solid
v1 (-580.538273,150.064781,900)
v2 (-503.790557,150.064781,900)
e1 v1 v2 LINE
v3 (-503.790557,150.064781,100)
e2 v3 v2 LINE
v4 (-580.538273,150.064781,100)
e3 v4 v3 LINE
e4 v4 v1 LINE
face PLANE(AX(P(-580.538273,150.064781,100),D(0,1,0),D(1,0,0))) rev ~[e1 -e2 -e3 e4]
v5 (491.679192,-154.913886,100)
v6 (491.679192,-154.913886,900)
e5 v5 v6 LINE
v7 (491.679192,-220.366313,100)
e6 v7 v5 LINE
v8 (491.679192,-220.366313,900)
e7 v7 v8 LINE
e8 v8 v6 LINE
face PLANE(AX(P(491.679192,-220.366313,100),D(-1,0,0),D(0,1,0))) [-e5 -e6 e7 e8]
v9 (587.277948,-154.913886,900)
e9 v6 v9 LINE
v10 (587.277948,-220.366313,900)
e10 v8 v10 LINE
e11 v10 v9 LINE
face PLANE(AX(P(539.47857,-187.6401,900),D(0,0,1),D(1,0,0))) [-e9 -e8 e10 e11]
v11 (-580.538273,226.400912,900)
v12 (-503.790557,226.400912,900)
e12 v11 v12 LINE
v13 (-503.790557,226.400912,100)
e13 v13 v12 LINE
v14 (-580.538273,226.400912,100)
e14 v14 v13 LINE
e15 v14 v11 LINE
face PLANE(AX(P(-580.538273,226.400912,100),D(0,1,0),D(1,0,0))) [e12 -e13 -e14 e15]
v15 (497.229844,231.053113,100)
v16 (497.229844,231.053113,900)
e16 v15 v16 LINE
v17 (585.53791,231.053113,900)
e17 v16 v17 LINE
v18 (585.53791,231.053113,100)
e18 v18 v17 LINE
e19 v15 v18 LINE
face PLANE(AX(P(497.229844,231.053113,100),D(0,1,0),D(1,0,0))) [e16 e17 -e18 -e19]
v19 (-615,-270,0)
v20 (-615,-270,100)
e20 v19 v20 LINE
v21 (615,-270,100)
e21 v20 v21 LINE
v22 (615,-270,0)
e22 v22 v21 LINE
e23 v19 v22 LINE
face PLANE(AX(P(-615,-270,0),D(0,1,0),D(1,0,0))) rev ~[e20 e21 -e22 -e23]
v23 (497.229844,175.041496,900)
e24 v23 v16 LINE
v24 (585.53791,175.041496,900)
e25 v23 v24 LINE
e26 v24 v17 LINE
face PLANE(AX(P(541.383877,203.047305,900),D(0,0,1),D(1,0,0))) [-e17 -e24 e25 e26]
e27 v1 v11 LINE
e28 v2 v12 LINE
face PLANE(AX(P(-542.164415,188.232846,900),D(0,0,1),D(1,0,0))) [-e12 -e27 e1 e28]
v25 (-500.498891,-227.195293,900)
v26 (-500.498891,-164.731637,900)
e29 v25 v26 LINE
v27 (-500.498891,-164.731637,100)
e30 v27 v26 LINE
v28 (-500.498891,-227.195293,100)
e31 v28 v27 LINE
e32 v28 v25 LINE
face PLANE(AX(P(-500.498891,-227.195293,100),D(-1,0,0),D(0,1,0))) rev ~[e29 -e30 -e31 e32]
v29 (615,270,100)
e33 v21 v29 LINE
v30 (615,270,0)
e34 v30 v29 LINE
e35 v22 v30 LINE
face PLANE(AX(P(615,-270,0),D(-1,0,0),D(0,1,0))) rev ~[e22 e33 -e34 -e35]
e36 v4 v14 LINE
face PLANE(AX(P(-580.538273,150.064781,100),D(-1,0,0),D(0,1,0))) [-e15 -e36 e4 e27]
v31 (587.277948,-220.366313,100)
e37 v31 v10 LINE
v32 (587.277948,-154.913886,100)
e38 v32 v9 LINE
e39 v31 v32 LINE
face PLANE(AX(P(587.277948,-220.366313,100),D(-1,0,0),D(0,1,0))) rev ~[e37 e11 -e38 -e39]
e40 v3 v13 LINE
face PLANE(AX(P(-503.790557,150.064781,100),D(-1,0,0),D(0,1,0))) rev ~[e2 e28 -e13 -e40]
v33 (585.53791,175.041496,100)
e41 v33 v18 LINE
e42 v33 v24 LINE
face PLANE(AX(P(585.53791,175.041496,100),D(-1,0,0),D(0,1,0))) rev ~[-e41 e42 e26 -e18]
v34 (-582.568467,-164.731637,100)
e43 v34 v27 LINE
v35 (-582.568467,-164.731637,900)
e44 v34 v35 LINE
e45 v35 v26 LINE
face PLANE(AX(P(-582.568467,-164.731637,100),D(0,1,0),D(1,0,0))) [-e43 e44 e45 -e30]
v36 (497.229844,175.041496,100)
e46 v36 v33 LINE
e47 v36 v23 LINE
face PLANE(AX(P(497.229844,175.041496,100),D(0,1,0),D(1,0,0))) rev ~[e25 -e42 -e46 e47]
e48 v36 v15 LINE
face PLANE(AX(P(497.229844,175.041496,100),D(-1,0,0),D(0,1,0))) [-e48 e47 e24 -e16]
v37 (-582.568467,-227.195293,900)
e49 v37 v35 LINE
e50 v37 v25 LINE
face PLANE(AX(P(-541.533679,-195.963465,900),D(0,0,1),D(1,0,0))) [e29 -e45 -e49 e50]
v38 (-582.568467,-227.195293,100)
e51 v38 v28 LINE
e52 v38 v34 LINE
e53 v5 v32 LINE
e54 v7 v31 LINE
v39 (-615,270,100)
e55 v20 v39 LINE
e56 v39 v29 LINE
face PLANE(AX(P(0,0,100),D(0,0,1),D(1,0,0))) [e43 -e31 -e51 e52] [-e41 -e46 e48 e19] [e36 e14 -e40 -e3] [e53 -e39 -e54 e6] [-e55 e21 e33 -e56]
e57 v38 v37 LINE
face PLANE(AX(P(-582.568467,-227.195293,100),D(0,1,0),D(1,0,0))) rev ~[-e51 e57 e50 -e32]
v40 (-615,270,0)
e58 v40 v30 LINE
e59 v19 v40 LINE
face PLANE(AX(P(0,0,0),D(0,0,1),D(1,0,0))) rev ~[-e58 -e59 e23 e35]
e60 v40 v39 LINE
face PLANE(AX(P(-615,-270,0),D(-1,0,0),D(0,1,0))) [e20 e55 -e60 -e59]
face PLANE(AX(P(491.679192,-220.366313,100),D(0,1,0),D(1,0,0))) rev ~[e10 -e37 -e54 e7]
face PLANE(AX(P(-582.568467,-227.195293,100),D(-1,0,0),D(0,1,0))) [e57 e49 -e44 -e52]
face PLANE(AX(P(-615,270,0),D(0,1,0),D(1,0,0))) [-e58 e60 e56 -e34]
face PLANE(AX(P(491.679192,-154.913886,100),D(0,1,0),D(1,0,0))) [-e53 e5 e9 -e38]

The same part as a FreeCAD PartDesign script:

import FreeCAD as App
import Part
import Sketcher

V = App.Vector

doc = App.newDocument("Part")
body = doc.addObject("PartDesign::Body", "Body")

# Sketch on XY plane
sketch1 = doc.addObject("Sketcher::SketchObject", "Sketch")
body.addObject(sketch1)
sketch1.AttachmentSupport = (doc.XY_Plane, [""])
sketch1.MapMode = "FlatFace"
sketch1.addGeometry(Part.LineSegment(V(-615, 270, 0), V(-615, -270, 0)), False)
sketch1.addGeometry(Part.LineSegment(V(-615, -270, 0), V(615, -270, 0)), False)
sketch1.addGeometry(Part.LineSegment(V(615, -270, 0), V(615, 270, 0)), False)
sketch1.addGeometry(Part.LineSegment(V(615, 270, 0), V(-615, 270, 0)), False)
sketch1.addConstraint(Sketcher.Constraint("Coincident", 0, 2, 1, 1))
sketch1.addConstraint(Sketcher.Constraint("Coincident", 1, 2, 2, 1))
sketch1.addConstraint(Sketcher.Constraint("Coincident", 2, 2, 3, 1))
sketch1.addConstraint(Sketcher.Constraint("Coincident", 3, 2, 0, 1))
sketch1.addConstraint(Sketcher.Constraint("Vertical", 0))
sketch1.addConstraint(Sketcher.Constraint("Horizontal", 1))
sketch1.addConstraint(Sketcher.Constraint("Vertical", 2))
sketch1.addConstraint(Sketcher.Constraint("Horizontal", 3))
sketch1.addConstraint(Sketcher.Constraint("Symmetric", 0, 2, 2, 2, -1, 1))
sketch1.addConstraint(Sketcher.Constraint("DistanceX", 1, 1, 1, 2, 1230.0))
sketch1.addConstraint(Sketcher.Constraint("DistanceY", 0, 2, 0, 1, 540.0))
pad1 = doc.addObject("PartDesign::Pad", "Pad")
body.addObject(pad1)
pad1.Profile = sketch1
pad1.Length = 100

# Sketch on XY plane
sketch2 = doc.addObject("Sketcher::SketchObject", "Sketch001")
body.addObject(sketch2)
sketch2.AttachmentSupport = (doc.XY_Plane, [""])
sketch2.MapMode = "FlatFace"
sketch2.AttachmentOffset = App.Placement(V(0, 0, 100), App.Rotation())
sketch2.addGeometry(Part.LineSegment(V(-581, 226, 0), V(-581, 150, 0)), False)
sketch2.addGeometry(Part.LineSegment(V(-581, 150, 0), V(-504, 150, 0)), False)
sketch2.addGeometry(Part.LineSegment(V(-504, 150, 0), V(-504, 226, 0)), False)
sketch2.addGeometry(Part.LineSegment(V(-504, 226, 0), V(-581, 226, 0)), False)
sketch2.addGeometry(Part.LineSegment(V(-583, -165, 0), V(-583, -227, 0)), False)
sketch2.addGeometry(Part.LineSegment(V(-583, -227, 0), V(-500, -227, 0)), False)
sketch2.addGeometry(Part.LineSegment(V(-500, -227, 0), V(-500, -165, 0)), False)
sketch2.addGeometry(Part.LineSegment(V(-500, -165, 0), V(-583, -165, 0)), False)
sketch2.addGeometry(Part.LineSegment(V(497, 231, 0), V(497, 175, 0)), False)
sketch2.addGeometry(Part.LineSegment(V(497, 175, 0), V(586, 175, 0)), False)
sketch2.addGeometry(Part.LineSegment(V(586, 175, 0), V(586, 231, 0)), False)
sketch2.addGeometry(Part.LineSegment(V(586, 231, 0), V(497, 231, 0)), False)
sketch2.addGeometry(Part.LineSegment(V(492, -155, 0), V(492, -220, 0)), False)
sketch2.addGeometry(Part.LineSegment(V(492, -220, 0), V(587, -220, 0)), False)
sketch2.addGeometry(Part.LineSegment(V(587, -220, 0), V(587, -155, 0)), False)
sketch2.addGeometry(Part.LineSegment(V(587, -155, 0), V(492, -155, 0)), False)
sketch2.addConstraint(Sketcher.Constraint("Coincident", 0, 2, 1, 1))
sketch2.addConstraint(Sketcher.Constraint("Coincident", 1, 2, 2, 1))
sketch2.addConstraint(Sketcher.Constraint("Coincident", 2, 2, 3, 1))
sketch2.addConstraint(Sketcher.Constraint("Coincident", 3, 2, 0, 1))
sketch2.addConstraint(Sketcher.Constraint("Coincident", 4, 2, 5, 1))
sketch2.addConstraint(Sketcher.Constraint("Coincident", 5, 2, 6, 1))
sketch2.addConstraint(Sketcher.Constraint("Coincident", 6, 2, 7, 1))
sketch2.addConstraint(Sketcher.Constraint("Coincident", 7, 2, 4, 1))
sketch2.addConstraint(Sketcher.Constraint("Coincident", 8, 2, 9, 1))
sketch2.addConstraint(Sketcher.Constraint("Coincident", 9, 2, 10, 1))
sketch2.addConstraint(Sketcher.Constraint("Coincident", 10, 2, 11, 1))
sketch2.addConstraint(Sketcher.Constraint("Coincident", 11, 2, 8, 1))
sketch2.addConstraint(Sketcher.Constraint("Coincident", 12, 2, 13, 1))
sketch2.addConstraint(Sketcher.Constraint("Coincident", 13, 2, 14, 1))
sketch2.addConstraint(Sketcher.Constraint("Coincident", 14, 2, 15, 1))
sketch2.addConstraint(Sketcher.Constraint("Coincident", 15, 2, 12, 1))
sketch2.addConstraint(Sketcher.Constraint("Vertical", 0))
sketch2.addConstraint(Sketcher.Constraint("Horizontal", 1))
sketch2.addConstraint(Sketcher.Constraint("Vertical", 2))
sketch2.addConstraint(Sketcher.Constraint("Horizontal", 3))
sketch2.addConstraint(Sketcher.Constraint("Vertical", 4))
sketch2.addConstraint(Sketcher.Constraint("Horizontal", 5))
sketch2.addConstraint(Sketcher.Constraint("Vertical", 6))
sketch2.addConstraint(Sketcher.Constraint("Horizontal", 7))
sketch2.addConstraint(Sketcher.Constraint("Vertical", 8))
sketch2.addConstraint(Sketcher.Constraint("Horizontal", 9))
sketch2.addConstraint(Sketcher.Constraint("Vertical", 10))
sketch2.addConstraint(Sketcher.Constraint("Horizontal", 11))
sketch2.addConstraint(Sketcher.Constraint("Vertical", 12))
sketch2.addConstraint(Sketcher.Constraint("Horizontal", 13))
sketch2.addConstraint(Sketcher.Constraint("Vertical", 14))
sketch2.addConstraint(Sketcher.Constraint("Horizontal", 15))
sketch2.addConstraint(Sketcher.Constraint("DistanceY", 14, 2, 10, 2, 385.967))
sketch2.addConstraint(Sketcher.Constraint("DistanceY", 0, 2, 0, 1, 76.336131))
sketch2.addConstraint(Sketcher.Constraint("DistanceX", 1, 2, 8, 2, 1001.020401))
sketch2.addConstraint(Sketcher.Constraint("DistanceX", 6, 2, 9, 2, 1086.036801))
sketch2.addConstraint(Sketcher.Constraint("DistanceY", 2, 2, 10, 2, 4.652202))
sketch2.addConstraint(Sketcher.Constraint("DistanceX", 1, 1, 1, 2, 76.747716))
sketch2.addConstraint(Sketcher.Constraint("DistanceX", 5, 1, 5, 2, 82.069576))
sketch2.addConstraint(Sketcher.Constraint("DistanceX", 9, 1, 9, 2, 88.308066))
sketch2.addConstraint(Sketcher.Constraint("DistanceX", 13, 1, 13, 2, 95.598757))
sketch2.addConstraint(Sketcher.Constraint("DistanceY", 4, 2, 4, 1, 62.463656))
sketch2.addConstraint(Sketcher.Constraint("DistanceY", 8, 2, 8, 1, 56.011617))
sketch2.addConstraint(Sketcher.Constraint("DistanceY", 12, 2, 12, 1, 65.452427))
sketch2.addConstraint(Sketcher.Constraint("DistanceY", -1, 1, 0, 2, 150.064781))
sketch2.addConstraint(Sketcher.Constraint("DistanceX", 5, 2, -1, 1, 500.498891))
sketch2.addConstraint(Sketcher.Constraint("DistanceX", -1, 1, 12, 2, 491.679192))
sketch2.addConstraint(Sketcher.Constraint("DistanceY", 6, 2, 2, 2, 391.132548))
pad2 = doc.addObject("PartDesign::Pad", "Pad001")
body.addObject(pad2)
pad2.Profile = sketch2
pad2.Length = 800

doc.recompute()
